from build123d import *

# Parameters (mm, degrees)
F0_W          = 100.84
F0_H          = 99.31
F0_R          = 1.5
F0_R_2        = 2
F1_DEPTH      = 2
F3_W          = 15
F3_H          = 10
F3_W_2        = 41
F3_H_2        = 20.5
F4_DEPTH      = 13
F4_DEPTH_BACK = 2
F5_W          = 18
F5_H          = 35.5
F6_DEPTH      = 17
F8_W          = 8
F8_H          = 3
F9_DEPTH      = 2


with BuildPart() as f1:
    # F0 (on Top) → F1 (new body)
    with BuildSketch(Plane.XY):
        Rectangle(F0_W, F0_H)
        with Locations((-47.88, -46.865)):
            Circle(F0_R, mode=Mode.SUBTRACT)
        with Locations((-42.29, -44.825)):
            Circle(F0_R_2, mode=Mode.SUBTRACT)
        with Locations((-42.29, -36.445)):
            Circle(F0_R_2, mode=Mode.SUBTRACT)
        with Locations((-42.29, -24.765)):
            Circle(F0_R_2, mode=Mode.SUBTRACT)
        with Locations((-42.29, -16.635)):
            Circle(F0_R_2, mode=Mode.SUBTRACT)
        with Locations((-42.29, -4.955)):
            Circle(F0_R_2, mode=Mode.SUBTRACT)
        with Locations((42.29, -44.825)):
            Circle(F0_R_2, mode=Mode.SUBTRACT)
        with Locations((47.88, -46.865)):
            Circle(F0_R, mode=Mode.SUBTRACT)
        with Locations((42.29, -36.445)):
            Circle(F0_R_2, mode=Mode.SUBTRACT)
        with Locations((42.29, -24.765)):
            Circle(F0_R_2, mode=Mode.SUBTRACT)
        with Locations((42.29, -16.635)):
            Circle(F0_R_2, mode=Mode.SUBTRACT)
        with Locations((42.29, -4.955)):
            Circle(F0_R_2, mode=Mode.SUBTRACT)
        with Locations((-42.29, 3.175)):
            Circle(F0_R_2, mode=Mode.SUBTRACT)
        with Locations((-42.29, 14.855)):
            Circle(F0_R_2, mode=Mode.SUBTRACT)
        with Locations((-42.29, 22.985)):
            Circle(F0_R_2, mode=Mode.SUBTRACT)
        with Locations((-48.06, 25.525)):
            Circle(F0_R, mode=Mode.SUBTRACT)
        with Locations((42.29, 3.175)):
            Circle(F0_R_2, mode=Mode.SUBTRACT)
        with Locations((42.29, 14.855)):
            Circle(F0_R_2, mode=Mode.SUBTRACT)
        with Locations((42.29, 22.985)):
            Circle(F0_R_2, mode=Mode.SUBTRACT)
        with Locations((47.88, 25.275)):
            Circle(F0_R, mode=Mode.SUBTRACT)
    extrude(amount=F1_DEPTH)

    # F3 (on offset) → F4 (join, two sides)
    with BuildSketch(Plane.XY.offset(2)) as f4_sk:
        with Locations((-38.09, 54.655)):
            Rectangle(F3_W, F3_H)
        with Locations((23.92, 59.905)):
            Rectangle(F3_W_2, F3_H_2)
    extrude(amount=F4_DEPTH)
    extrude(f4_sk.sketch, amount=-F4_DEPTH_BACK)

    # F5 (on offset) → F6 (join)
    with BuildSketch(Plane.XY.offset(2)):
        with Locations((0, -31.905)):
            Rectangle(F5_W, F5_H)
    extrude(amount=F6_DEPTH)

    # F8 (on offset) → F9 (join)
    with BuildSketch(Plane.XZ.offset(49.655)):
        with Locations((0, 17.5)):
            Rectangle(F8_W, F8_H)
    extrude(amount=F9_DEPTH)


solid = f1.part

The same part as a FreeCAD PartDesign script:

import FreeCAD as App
import Part
import Sketcher
from FreeCAD import Vector


def add_polygon(sketch, points):
    """Adds a closed chain of lines whose ends are joined by coincident constraints."""
    first, n = sketch.GeometryCount, len(points)
    for a, b in zip(points, points[1:] + points[:1]):
        sketch.addGeometry(Part.LineSegment(App.Vector(*a, 0), App.Vector(*b, 0)), False)
    for i in range(n):
        sketch.addConstraint(Sketcher.Constraint("Coincident", first + i, 2, first + (i + 1) % n, 1))

doc = App.newDocument("Part")
body = doc.addObject("PartDesign::Body", "Body")

# Sketch on XY plane
sketch1 = body.newObject("Sketcher::SketchObject", "Sketch")
sketch1.AttachmentSupport = (doc.getObject("XY_Plane"), [""])
sketch1.MapMode = "FlatFace"
add_polygon(sketch1, [(-50.4, 49.7), (-50.4, -49.7), (50.4, -49.7), (50.4, 49.7)])  # lines 0-3
sketch1.addGeometry(Part.Circle(Vector(-47.9, -46.9, 0), Vector(0, 0, 1), 1.5), False)  # 4
sketch1.addGeometry(Part.Circle(Vector(-42.3, -44.8, 0), Vector(0, 0, 1), 2), False)  # 5
sketch1.addGeometry(Part.Circle(Vector(-42.3, -36.4, 0), Vector(0, 0, 1), 2), False)  # 6
sketch1.addGeometry(Part.Circle(Vector(-42.3, -24.8, 0), Vector(0, 0, 1), 2), False)  # 7
sketch1.addGeometry(Part.Circle(Vector(-42.3, -16.6, 0), Vector(0, 0, 1), 2), False)  # 8
sketch1.addGeometry(Part.Circle(Vector(42.3, -44.8, 0), Vector(0, 0, 1), 2), False)  # 9
sketch1.addGeometry(Part.Circle(Vector(47.9, -46.9, 0), Vector(0, 0, 1), 1.5), False)  # 10
sketch1.addGeometry(Part.Circle(Vector(42.3, -36.4, 0), Vector(0, 0, 1), 2), False)  # 11
sketch1.addGeometry(Part.Circle(Vector(42.3, -24.8, 0), Vector(0, 0, 1), 2), False)  # 12
sketch1.addGeometry(Part.Circle(Vector(42.3, -16.6, 0), Vector(0, 0, 1), 2), False)  # 13
sketch1.addGeometry(Part.Circle(Vector(-42.3, -5, 0), Vector(0, 0, 1), 2), False)  # 14
sketch1.addGeometry(Part.Circle(Vector(-42.3, 3.2, 0), Vector(0, 0, 1), 2), False)  # 15
sketch1.addGeometry(Part.Circle(Vector(-42.3, 14.9, 0), Vector(0, 0, 1), 2), False)  # 16
sketch1.addGeometry(Part.Circle(Vector(-48.1, 25.5, 0), Vector(0, 0, 1), 1.5), False)  # 17
sketch1.addGeometry(Part.Circle(Vector(-42.3, 23, 0), Vector(0, 0, 1), 2), False)  # 18
sketch1.addGeometry(Part.Circle(Vector(42.3, -5, 0), Vector(0, 0, 1), 2), False)  # 19
sketch1.addGeometry(Part.Circle(Vector(42.3, 3.2, 0), Vector(0, 0, 1), 2), False)  # 20
sketch1.addGeometry(Part.Circle(Vector(42.3, 14.9, 0), Vector(0, 0, 1), 2), False)  # 21
sketch1.addGeometry(Part.Circle(Vector(42.3, 23, 0), Vector(0, 0, 1), 2), False)  # 22
sketch1.addGeometry(Part.Circle(Vector(47.9, 25.3, 0), Vector(0, 0, 1), 1.5), False)  # 23
sketch1.addConstraint([
    Sketcher.Constraint("Vertical", 0),
    Sketcher.Constraint("Horizontal", 1),
    Sketcher.Constraint("Vertical", 2),
    Sketcher.Constraint("Horizontal", 3),
    Sketcher.Constraint("Equal", 5, 6),
    Sketcher.Constraint("Equal", 6, 7),
    Sketcher.Constraint("Equal", 7, 8),
    Sketcher.Constraint("Equal", 8, 9),
    Sketcher.Constraint("Equal", 4, 10),
    Sketcher.Constraint("Equal", 9, 11),
    Sketcher.Constraint("Equal", 11, 12),
    Sketcher.Constraint("Equal", 12, 13),
    Sketcher.Constraint("Equal", 13, 14),
    Sketcher.Constraint("Equal", 14, 15),
    Sketcher.Constraint("Equal", 15, 16),
    Sketcher.Constraint("Equal", 10, 17),
    Sketcher.Constraint("Equal", 16, 18),
    Sketcher.Constraint("Equal", 18, 19),
    Sketcher.Constraint("Equal", 19, 20),
    Sketcher.Constraint("Equal", 20, 21),
    Sketcher.Constraint("Equal", 21, 22),
    Sketcher.Constraint("Equal", 17, 23),
    Sketcher.Constraint("Symmetric", 0, 2, 2, 2, -1, 1),
    Sketcher.Constraint("Symmetric", 5, 3, 9, 3, -2),
    Sketcher.Constraint("Symmetric", 4, 3, 10, 3, -2),
    Sketcher.Constraint("Symmetric", 6, 3, 11, 3, -2),
    Sketcher.Constraint("Symmetric", 7, 3, 12, 3, -2),
    Sketcher.Constraint("Symmetric", 8, 3, 13, 3, -2),
    Sketcher.Constraint("Symmetric", 14, 3, 19, 3, -2),
    Sketcher.Constraint("Symmetric", 15, 3, 20, 3, -2),
    Sketcher.Constraint("Symmetric", 16, 3, 21, 3, -2),
    Sketcher.Constraint("Symmetric", 18, 3, 22, 3, -2),
    Sketcher.Constraint("Vertical", 5, 3, 6, 3),
    Sketcher.Constraint("Vertical", 6, 3, 7, 3),
    Sketcher.Constraint("Vertical", 7, 3, 8, 3),
    Sketcher.Constraint("Vertical", 8, 3, 14, 3),
    Sketcher.Constraint("Vertical", 14, 3, 15, 3),
    Sketcher.Constraint("Vertical", 15, 3, 16, 3),
    Sketcher.Constraint("Vertical", 16, 3, 18, 3),
    Sketcher.Constraint("Vertical", 10, 3, 23, 3),
    Sketcher.Constraint("Diameter", 4, 3.0),
    Sketcher.Constraint("Diameter", 5, 4.0),
    Sketcher.Constraint("DistanceY", 5, 3, 15, 3, 48.0),
    Sketcher.Constraint("DistanceX", 1, 1, 1, 2, 100.84),
    Sketcher.Constraint("DistanceY", 0, 2, 0, 1, 99.31),
    Sketcher.Constraint("DistanceY", 4, 3, 7, 3, 22.1),
    Sketcher.Constraint("DistanceY", 6, 3, 16, 3, 51.3),
    Sketcher.Constraint("DistanceY", 20, 3, 23, 3, 22.1),
    Sketcher.Constraint("DistanceY", 21, 3, 2, 2, 34.8),
    Sketcher.Constraint("DistanceX", 4, 3, -1, 1, 47.88),
    Sketcher.Constraint("DistanceX", 5, 3, -1, 1, 42.29),
    Sketcher.Constraint("DistanceX", 17, 3, -1, 1, 48.06),
    Sketcher.Constraint("DistanceY", 4, 3, 5, 3, 2.04),
    Sketcher.Constraint("DistanceY", 5, 3, 6, 3, 8.38),
    Sketcher.Constraint("DistanceY", 7, 3, 8, 3, 8.13),
    Sketcher.Constraint("DistanceY", 8, 3, 14, 3, 11.68),
    Sketcher.Constraint("DistanceY", 16, 3, 17, 3, 10.67),
    Sketcher.Constraint("DistanceY", 18, 3, 17, 3, 2.54),
])
pad1 = body.newObject("PartDesign::Pad", "Pad")
pad1.Profile = sketch1
pad1.Length = 2

# Sketch on XY plane
sketch2 = body.newObject("Sketcher::SketchObject", "Sketch001")
sketch2.AttachmentSupport = (doc.getObject("XY_Plane"), [""])
sketch2.MapMode = "FlatFace"
sketch2.AttachmentOffset = App.Placement(Vector(0, 0, 2), App.Rotation())
add_polygon(sketch2, [(-46, 60), (-46, 50), (-31, 50), (-31, 60)])  # lines 0-3
add_polygon(sketch2, [(3, 70), (3, 50), (44, 50), (44, 70)])  # lines 4-7
sketch2.addConstraint([
    Sketcher.Constraint("Vertical", 0),
    Sketcher.Constraint("Horizontal", 1),
    Sketcher.Constraint("Vertical", 2),
    Sketcher.Constraint("Horizontal", 3),
    Sketcher.Constraint("Vertical", 4),
    Sketcher.Constraint("Horizontal", 5),
    Sketcher.Constraint("Vertical", 6),
    Sketcher.Constraint("Horizontal", 7),
    Sketcher.Constraint("Horizontal", 1, 2, 4, 2),
    Sketcher.Constraint("DistanceX", 1, 1, 1, 2, 15.0),
    Sketcher.Constraint("DistanceX", 5, 1, 5, 2, 41.0),
    Sketcher.Constraint("DistanceY", 0, 2, 0, 1, 10.0),
    Sketcher.Constraint("DistanceY", 4, 2, 4, 1, 20.5),
    Sketcher.Constraint("DistanceX", 0, 2, -1, 1, 45.59),
    Sketcher.Constraint("DistanceX", -1, 1, 4, 2, 3.42),
    Sketcher.Constraint("DistanceY", -1, 1, 0, 2, 49.655),
])
pad2 = body.newObject("PartDesign::Pad", "Pad001")
pad2.Profile = sketch2
pad2.Type = "TwoLengths"
pad2.Length = 13
pad2.Length2 = 2

# Sketch on XY plane
sketch3 = body.newObject("Sketcher::SketchObject", "Sketch002")
sketch3.AttachmentSupport = (doc.getObject("XY_Plane"), [""])
sketch3.MapMode = "FlatFace"
sketch3.AttachmentOffset = App.Placement(Vector(0, 0, 2), App.Rotation())
add_polygon(sketch3, [(-9, -14), (-9, -50), (9, -50), (9, -14)])  # lines 0-3
sketch3.addConstraint([
    Sketcher.Constraint("Vertical", 0),
    Sketcher.Constraint("Horizontal", 1),
    Sketcher.Constraint("Vertical", 2),
    Sketcher.Constraint("Horizontal", 3),
    Sketcher.Constraint("DistanceX", 1, 1, 1, 2, 18.0),
    Sketcher.Constraint("DistanceY", 0, 2, 0, 1, 35.5),
    Sketcher.Constraint("DistanceX", 0, 2, -1, 1, 9.0),
    Sketcher.Constraint("DistanceY", 0, 2, -1, 1, 49.655),
])
pad3 = body.newObject("PartDesign::Pad", "Pad002")
pad3.Profile = sketch3
pad3.Length = 17

# Sketch on XZ plane
sketch4 = body.newObject("Sketcher::SketchObject", "Sketch003")
sketch4.AttachmentSupport = (doc.getObject("XZ_Plane"), [""])
sketch4.MapMode = "FlatFace"
sketch4.AttachmentOffset = App.Placement(Vector(0, 0, 49.655), App.Rotation())
add_polygon(sketch4, [(-4, 19), (-4, 16), (4, 16), (4, 19)])  # lines 0-3
sketch4.addConstraint([
    Sketcher.Constraint("Vertical", 0),
    Sketcher.Constraint("Horizontal", 1),
    Sketcher.Constraint("Vertical", 2),
    Sketcher.Constraint("Horizontal", 3),
    Sketcher.Constraint("DistanceX", 1, 1, 1, 2, 8.0),
    Sketcher.Constraint("DistanceY", 0, 2, 0, 1, 3.0),
    Sketcher.Constraint("DistanceX", 0, 2, -1, 1, 4.0),
    Sketcher.Constraint("DistanceY", -1, 1, 0, 2, 16.0),
])
pad4 = body.newObject("PartDesign::Pad", "Pad003")
pad4.Profile = sketch4
pad4.Length = 2

doc.recompute()
